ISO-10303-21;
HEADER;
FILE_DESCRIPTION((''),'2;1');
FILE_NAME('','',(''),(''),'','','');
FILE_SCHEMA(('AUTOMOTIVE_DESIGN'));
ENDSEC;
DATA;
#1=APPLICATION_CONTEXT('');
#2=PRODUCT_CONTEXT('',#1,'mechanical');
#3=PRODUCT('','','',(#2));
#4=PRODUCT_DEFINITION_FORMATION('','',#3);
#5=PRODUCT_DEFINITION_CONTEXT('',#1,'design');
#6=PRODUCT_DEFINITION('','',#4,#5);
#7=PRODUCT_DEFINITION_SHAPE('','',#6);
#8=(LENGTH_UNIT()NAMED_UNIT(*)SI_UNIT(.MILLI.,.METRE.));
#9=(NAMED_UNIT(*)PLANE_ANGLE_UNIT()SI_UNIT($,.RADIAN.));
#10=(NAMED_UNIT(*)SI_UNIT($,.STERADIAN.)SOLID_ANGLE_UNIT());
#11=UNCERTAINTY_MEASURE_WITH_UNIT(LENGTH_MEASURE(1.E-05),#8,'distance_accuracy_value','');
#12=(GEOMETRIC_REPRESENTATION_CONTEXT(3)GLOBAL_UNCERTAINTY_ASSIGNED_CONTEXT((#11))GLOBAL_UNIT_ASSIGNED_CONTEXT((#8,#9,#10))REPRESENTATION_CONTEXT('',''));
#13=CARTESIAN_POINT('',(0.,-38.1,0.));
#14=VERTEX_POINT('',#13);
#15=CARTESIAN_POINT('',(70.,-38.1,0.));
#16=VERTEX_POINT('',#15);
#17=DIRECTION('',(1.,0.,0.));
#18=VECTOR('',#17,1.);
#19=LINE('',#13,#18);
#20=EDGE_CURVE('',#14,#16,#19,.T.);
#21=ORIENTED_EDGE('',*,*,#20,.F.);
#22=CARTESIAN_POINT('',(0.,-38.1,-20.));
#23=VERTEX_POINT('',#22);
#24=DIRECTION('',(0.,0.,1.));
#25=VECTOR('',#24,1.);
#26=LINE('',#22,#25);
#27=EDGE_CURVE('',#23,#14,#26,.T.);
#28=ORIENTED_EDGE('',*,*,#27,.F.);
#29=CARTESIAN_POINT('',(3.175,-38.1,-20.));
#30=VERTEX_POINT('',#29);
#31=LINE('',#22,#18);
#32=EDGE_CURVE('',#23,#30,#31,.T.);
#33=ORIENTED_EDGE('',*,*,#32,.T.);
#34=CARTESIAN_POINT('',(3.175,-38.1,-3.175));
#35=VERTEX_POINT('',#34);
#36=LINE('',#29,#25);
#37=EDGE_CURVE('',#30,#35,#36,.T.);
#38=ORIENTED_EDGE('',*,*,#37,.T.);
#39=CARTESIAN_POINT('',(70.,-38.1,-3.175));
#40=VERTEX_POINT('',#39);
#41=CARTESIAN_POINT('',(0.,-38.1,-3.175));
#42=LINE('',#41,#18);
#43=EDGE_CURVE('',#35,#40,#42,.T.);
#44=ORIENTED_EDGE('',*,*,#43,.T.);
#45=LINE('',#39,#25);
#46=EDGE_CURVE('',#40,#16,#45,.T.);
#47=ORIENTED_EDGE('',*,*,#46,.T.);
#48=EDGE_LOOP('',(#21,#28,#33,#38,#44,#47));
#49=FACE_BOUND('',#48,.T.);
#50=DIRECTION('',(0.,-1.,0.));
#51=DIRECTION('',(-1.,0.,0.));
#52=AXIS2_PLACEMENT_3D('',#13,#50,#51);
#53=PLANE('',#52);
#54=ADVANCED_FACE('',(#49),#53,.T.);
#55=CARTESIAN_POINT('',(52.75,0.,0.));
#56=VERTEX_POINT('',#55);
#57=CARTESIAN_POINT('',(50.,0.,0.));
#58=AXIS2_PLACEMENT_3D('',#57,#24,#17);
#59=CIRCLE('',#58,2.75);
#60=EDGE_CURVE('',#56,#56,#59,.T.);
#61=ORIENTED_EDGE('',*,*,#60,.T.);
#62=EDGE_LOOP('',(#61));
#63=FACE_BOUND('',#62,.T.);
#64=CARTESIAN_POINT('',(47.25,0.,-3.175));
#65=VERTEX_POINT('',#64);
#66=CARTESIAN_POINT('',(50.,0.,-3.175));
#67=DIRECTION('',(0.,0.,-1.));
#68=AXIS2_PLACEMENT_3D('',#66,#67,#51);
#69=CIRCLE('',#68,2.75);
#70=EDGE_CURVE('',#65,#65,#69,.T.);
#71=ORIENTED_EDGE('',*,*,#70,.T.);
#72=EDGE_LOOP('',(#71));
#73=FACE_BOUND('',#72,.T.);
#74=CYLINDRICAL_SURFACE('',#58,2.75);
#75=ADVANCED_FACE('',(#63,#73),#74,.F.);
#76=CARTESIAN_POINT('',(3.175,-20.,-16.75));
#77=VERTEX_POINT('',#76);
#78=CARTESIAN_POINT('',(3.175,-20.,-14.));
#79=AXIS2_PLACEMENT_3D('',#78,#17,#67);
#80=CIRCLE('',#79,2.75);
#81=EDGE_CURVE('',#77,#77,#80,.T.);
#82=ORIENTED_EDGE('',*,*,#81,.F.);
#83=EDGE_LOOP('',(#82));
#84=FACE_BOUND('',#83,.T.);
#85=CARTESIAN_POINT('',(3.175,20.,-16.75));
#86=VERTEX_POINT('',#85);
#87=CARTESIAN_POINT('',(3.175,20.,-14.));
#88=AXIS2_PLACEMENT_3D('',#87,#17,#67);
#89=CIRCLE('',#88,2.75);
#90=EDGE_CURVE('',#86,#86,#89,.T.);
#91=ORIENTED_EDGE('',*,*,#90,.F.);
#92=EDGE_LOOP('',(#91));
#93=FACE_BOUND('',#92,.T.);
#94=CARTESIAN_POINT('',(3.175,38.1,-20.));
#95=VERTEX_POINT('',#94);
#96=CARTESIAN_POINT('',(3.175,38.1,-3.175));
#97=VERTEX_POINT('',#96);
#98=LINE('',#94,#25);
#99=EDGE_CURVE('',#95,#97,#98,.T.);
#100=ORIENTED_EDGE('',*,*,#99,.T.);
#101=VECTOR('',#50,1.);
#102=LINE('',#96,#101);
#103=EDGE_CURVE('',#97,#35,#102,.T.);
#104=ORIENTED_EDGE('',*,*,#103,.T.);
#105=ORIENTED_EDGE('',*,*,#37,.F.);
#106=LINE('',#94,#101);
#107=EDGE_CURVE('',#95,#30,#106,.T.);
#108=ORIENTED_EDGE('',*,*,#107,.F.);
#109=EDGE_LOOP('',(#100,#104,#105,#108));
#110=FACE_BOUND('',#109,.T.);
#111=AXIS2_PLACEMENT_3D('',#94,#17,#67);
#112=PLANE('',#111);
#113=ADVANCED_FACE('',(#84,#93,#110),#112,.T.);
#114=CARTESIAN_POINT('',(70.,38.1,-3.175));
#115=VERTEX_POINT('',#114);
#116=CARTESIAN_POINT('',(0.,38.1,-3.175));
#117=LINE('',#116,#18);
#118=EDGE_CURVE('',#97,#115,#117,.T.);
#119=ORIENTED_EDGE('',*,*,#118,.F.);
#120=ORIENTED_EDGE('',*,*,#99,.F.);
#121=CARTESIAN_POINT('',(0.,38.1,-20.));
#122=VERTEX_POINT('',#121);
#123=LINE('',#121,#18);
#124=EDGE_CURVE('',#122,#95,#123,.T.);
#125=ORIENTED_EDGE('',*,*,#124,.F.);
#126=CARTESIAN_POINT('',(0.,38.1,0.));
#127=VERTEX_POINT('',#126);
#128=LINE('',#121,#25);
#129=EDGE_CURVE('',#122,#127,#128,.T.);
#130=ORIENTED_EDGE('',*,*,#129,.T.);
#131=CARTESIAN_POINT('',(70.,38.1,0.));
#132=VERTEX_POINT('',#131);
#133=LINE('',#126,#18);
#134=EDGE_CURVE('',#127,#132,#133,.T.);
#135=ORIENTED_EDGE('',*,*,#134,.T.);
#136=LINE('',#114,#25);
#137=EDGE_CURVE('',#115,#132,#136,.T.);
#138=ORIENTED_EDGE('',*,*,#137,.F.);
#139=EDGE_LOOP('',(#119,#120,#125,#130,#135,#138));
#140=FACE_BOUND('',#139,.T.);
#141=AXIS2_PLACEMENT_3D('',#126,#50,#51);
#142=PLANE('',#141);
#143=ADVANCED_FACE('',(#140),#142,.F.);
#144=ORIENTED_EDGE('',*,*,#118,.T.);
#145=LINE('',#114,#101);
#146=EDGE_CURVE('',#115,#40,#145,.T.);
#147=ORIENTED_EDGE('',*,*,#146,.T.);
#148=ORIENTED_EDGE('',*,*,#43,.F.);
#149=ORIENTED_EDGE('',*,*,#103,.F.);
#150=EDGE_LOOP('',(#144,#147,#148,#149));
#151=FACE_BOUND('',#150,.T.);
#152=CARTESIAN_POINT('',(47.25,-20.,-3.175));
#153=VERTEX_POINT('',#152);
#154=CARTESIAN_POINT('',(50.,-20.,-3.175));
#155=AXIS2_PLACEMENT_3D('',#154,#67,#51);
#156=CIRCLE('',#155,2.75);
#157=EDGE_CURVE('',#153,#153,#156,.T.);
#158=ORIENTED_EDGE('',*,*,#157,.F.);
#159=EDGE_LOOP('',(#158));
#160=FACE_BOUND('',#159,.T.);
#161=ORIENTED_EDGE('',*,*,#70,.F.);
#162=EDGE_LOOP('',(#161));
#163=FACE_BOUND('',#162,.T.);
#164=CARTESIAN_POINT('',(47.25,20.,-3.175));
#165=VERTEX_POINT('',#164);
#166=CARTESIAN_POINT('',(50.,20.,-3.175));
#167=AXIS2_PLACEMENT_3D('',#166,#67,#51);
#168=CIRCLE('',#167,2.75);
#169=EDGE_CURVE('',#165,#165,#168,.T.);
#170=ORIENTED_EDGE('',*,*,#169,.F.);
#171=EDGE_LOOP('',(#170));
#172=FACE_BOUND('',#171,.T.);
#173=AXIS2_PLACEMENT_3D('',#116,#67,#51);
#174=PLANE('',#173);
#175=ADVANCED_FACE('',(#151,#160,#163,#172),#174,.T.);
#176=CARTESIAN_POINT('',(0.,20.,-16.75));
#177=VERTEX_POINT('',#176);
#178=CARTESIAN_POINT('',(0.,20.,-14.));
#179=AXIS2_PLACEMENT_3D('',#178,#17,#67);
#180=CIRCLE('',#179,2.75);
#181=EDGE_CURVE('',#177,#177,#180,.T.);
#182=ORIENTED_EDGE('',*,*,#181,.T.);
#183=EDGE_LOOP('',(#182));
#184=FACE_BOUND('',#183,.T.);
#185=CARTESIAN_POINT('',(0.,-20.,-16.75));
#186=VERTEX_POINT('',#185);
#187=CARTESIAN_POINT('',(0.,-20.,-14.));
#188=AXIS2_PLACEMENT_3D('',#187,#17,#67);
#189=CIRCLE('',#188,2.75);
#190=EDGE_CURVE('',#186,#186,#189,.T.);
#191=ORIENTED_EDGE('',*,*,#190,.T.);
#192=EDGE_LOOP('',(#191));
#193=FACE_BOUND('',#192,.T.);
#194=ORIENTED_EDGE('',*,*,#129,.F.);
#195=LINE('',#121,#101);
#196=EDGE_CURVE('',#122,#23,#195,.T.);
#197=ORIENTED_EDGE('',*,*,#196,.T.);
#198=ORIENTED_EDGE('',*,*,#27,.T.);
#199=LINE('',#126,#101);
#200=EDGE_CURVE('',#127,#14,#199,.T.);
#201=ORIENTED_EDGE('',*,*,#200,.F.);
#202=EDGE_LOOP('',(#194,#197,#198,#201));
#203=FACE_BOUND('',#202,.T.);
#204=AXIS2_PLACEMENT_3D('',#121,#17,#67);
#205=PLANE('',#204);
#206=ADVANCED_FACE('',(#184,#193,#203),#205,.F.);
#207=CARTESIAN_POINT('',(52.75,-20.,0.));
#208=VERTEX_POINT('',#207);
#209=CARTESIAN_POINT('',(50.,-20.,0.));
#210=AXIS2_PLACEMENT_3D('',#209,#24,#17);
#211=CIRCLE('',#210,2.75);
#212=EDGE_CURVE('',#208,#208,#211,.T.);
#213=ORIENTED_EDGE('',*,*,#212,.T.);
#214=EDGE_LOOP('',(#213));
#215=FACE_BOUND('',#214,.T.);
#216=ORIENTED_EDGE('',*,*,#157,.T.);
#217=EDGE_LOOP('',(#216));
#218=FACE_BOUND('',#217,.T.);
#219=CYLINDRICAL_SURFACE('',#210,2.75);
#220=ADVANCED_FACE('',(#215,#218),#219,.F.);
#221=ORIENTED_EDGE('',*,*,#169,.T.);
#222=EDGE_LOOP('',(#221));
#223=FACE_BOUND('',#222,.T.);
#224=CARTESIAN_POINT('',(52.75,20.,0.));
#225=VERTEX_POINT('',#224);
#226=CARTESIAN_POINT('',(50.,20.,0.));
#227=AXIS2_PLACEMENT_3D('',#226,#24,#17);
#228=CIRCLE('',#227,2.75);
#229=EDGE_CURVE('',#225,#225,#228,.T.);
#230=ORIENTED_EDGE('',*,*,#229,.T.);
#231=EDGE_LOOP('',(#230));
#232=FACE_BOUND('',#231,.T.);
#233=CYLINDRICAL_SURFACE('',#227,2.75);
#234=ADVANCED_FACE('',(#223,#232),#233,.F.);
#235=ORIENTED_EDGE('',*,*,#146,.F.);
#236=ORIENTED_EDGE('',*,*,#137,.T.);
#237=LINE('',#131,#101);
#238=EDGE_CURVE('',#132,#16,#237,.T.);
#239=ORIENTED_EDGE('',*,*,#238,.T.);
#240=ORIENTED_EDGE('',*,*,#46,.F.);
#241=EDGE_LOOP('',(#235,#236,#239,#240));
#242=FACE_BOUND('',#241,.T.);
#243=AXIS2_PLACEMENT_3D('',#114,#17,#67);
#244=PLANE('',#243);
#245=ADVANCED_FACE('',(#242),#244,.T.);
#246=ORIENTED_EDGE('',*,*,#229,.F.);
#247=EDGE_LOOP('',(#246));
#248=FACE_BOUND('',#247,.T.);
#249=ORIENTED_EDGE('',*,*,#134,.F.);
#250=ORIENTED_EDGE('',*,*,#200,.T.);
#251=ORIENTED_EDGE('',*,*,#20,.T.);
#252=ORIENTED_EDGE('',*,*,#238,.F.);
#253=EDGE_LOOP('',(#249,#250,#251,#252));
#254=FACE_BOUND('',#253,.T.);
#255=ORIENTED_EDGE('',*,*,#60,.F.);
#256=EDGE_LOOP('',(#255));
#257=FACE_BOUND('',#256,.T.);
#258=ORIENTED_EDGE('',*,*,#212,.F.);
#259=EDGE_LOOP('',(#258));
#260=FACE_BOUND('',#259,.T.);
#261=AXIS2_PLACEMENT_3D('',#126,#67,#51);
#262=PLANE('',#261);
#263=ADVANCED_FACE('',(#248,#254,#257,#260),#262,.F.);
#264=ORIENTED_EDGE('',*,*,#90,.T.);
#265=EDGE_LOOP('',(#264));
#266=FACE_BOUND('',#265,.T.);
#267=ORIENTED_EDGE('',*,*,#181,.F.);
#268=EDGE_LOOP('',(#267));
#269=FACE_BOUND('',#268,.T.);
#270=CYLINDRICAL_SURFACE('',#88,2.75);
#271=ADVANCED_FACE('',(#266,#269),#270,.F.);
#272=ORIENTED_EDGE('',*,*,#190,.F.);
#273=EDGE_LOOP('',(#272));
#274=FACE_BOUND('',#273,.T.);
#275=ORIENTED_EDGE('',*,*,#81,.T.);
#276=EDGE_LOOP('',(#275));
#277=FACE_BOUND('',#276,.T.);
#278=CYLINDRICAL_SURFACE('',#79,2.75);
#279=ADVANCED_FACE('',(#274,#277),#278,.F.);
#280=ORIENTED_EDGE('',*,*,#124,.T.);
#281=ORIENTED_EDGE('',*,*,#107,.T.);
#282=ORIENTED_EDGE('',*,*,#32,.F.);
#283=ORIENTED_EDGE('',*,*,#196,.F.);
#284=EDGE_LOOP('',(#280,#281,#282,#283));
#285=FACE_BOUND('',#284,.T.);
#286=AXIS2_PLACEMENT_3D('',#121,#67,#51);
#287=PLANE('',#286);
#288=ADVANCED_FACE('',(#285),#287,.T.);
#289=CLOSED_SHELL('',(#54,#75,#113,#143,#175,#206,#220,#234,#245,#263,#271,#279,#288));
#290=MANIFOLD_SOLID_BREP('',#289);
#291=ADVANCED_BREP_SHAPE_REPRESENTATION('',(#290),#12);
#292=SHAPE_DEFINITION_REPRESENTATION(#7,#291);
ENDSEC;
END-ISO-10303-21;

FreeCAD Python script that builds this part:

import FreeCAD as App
import Part
import Sketcher

V = App.Vector

doc = App.newDocument("Part")
body = doc.addObject("PartDesign::Body", "Body")

sketch1 = doc.addObject("Sketcher::SketchObject", "Sketch")
body.addObject(sketch1)
sketch1.AttachmentSupport = (doc.XZ_Plane, [""])
sketch1.MapMode = "FlatFace"
sketch1.addGeometry(Part.LineSegment(V(0, -20, 0), V(0, 0, 0)), False)
sketch1.addGeometry(Part.LineSegment(V(0, 0, 0), V(70, 0, 0)), False)
sketch1.addGeometry(Part.LineSegment(V(70, 0, 0), V(70, -3.2, 0)), False)
sketch1.addGeometry(Part.LineSegment(V(70, -3.2, 0), V(3.2, -3.2, 0)), False)
sketch1.addGeometry(Part.LineSegment(V(3.2, -3.2, 0), V(3.2, -20, 0)), False)
sketch1.addGeometry(Part.LineSegment(V(3.2, -20, 0), V(0, -20, 0)), False)
sketch1.addConstraint(Sketcher.Constraint("Coincident", 0, 2, 1, 1))
sketch1.addConstraint(Sketcher.Constraint("Coincident", 1, 2, 2, 1))
sketch1.addConstraint(Sketcher.Constraint("Coincident", 2, 2, 3, 1))
sketch1.addConstraint(Sketcher.Constraint("Coincident", 3, 2, 4, 1))
sketch1.addConstraint(Sketcher.Constraint("Coincident", 4, 2, 5, 1))
sketch1.addConstraint(Sketcher.Constraint("Coincident", 5, 2, 0, 1))
sketch1.addConstraint(Sketcher.Constraint("Vertical", 0))
sketch1.addConstraint(Sketcher.Constraint("Horizontal", 1))
sketch1.addConstraint(Sketcher.Constraint("Vertical", 2))
sketch1.addConstraint(Sketcher.Constraint("Horizontal", 3))
sketch1.addConstraint(Sketcher.Constraint("Vertical", 4))
sketch1.addConstraint(Sketcher.Constraint("Horizontal", 5))
sketch1.addConstraint(Sketcher.Constraint("Coincident", 0, 2, -1, 1))
sketch1.addConstraint(Sketcher.Constraint("Equal", 5, 2))
sketch1.addConstraint(Sketcher.Constraint("DistanceX", 1, 1, 1, 2, 70.0))
sketch1.addConstraint(Sketcher.Constraint("DistanceY", 0, 1, 0, 2, 20.0))
sketch1.addConstraint(Sketcher.Constraint("DistanceX", 3, 2, 3, 1, 66.825))
pad1 = doc.addObject("PartDesign::Pad", "Pad")
body.addObject(pad1)
pad1.Profile = sketch1
pad1.Length = 76.2
pad1.Midplane = True

sketch2 = doc.addObject("Sketcher::SketchObject", "Sketch001")
body.addObject(sketch2)
sketch2.AttachmentSupport = (doc.XY_Plane, [""])
sketch2.MapMode = "FlatFace"
sketch2.addGeometry(Part.Circle(V(50, 20, 0), V(0, 0, 1), 2.8), False)
sketch2.addGeometry(Part.Circle(V(50, 0, 0), V(0, 0, 1), 2.8), False)
sketch2.addGeometry(Part.Circle(V(50, -20, 0), V(0, 0, 1), 2.8), False)
sketch2.addConstraint(Sketcher.Constraint("Equal", 0, 1))
sketch2.addConstraint(Sketcher.Constraint("Equal", 1, 2))
sketch2.addConstraint(Sketcher.Constraint("Symmetric", 0, 3, 2, 3, -1))
sketch2.addConstraint(Sketcher.Constraint("PointOnObject", 1, 3, -1))
sketch2.addConstraint(Sketcher.Constraint("Vertical", 0, 3, 1, 3))
sketch2.addConstraint(Sketcher.Constraint("Diameter", 0, 5.5))
sketch2.addConstraint(Sketcher.Constraint("DistanceX", -1, 1, 0, 3, 50.0))
sketch2.addConstraint(Sketcher.Constraint("DistanceY", -1, 1, 0, 3, 20.0))
doc.recompute()
hole = doc.addObject("PartDesign::Hole", "Hole")
body.addObject(hole)
hole.Profile = sketch2
hole.ThreadType = "None"
hole.Diameter = 5.5
hole.DepthType = "ThroughAll"

sketch3 = doc.addObject("Sketcher::SketchObject", "Sketch002")
body.addObject(sketch3)
sketch3.AttachmentSupport = (doc.YZ_Plane, [""])
sketch3.MapMode = "FlatFace"
sketch3.AttachmentOffset = App.Placement(V(0, 0, 3.175), App.Rotation())
sketch3.addGeometry(Part.Circle(V(20, -14, 0), V(0, 0, 1), 2.8), False)
sketch3.addGeometry(Part.Circle(V(-20, -14, 0), V(0, 0, 1), 2.8), False)
sketch3.addConstraint(Sketcher.Constraint("Equal", 0, 1))
sketch3.addConstraint(Sketcher.Constraint("Symmetric", 0, 3, 1, 3, -2))
sketch3.addConstraint(Sketcher.Constraint("Diameter", 0, 5.5))
sketch3.addConstraint(Sketcher.Constraint("DistanceX", -1, 1, 0, 3, 20.0))
sketch3.addConstraint(Sketcher.Constraint("DistanceY", 0, 3, -1, 1, 14.0))
doc.recompute()
hole2 = doc.addObject("PartDesign::Hole", "Hole001")
body.addObject(hole2)
hole2.Profile = sketch3
hole2.ThreadType = "None"
hole2.Diameter = 5.5
hole2.DepthType = "ThroughAll"

doc.recompute()
